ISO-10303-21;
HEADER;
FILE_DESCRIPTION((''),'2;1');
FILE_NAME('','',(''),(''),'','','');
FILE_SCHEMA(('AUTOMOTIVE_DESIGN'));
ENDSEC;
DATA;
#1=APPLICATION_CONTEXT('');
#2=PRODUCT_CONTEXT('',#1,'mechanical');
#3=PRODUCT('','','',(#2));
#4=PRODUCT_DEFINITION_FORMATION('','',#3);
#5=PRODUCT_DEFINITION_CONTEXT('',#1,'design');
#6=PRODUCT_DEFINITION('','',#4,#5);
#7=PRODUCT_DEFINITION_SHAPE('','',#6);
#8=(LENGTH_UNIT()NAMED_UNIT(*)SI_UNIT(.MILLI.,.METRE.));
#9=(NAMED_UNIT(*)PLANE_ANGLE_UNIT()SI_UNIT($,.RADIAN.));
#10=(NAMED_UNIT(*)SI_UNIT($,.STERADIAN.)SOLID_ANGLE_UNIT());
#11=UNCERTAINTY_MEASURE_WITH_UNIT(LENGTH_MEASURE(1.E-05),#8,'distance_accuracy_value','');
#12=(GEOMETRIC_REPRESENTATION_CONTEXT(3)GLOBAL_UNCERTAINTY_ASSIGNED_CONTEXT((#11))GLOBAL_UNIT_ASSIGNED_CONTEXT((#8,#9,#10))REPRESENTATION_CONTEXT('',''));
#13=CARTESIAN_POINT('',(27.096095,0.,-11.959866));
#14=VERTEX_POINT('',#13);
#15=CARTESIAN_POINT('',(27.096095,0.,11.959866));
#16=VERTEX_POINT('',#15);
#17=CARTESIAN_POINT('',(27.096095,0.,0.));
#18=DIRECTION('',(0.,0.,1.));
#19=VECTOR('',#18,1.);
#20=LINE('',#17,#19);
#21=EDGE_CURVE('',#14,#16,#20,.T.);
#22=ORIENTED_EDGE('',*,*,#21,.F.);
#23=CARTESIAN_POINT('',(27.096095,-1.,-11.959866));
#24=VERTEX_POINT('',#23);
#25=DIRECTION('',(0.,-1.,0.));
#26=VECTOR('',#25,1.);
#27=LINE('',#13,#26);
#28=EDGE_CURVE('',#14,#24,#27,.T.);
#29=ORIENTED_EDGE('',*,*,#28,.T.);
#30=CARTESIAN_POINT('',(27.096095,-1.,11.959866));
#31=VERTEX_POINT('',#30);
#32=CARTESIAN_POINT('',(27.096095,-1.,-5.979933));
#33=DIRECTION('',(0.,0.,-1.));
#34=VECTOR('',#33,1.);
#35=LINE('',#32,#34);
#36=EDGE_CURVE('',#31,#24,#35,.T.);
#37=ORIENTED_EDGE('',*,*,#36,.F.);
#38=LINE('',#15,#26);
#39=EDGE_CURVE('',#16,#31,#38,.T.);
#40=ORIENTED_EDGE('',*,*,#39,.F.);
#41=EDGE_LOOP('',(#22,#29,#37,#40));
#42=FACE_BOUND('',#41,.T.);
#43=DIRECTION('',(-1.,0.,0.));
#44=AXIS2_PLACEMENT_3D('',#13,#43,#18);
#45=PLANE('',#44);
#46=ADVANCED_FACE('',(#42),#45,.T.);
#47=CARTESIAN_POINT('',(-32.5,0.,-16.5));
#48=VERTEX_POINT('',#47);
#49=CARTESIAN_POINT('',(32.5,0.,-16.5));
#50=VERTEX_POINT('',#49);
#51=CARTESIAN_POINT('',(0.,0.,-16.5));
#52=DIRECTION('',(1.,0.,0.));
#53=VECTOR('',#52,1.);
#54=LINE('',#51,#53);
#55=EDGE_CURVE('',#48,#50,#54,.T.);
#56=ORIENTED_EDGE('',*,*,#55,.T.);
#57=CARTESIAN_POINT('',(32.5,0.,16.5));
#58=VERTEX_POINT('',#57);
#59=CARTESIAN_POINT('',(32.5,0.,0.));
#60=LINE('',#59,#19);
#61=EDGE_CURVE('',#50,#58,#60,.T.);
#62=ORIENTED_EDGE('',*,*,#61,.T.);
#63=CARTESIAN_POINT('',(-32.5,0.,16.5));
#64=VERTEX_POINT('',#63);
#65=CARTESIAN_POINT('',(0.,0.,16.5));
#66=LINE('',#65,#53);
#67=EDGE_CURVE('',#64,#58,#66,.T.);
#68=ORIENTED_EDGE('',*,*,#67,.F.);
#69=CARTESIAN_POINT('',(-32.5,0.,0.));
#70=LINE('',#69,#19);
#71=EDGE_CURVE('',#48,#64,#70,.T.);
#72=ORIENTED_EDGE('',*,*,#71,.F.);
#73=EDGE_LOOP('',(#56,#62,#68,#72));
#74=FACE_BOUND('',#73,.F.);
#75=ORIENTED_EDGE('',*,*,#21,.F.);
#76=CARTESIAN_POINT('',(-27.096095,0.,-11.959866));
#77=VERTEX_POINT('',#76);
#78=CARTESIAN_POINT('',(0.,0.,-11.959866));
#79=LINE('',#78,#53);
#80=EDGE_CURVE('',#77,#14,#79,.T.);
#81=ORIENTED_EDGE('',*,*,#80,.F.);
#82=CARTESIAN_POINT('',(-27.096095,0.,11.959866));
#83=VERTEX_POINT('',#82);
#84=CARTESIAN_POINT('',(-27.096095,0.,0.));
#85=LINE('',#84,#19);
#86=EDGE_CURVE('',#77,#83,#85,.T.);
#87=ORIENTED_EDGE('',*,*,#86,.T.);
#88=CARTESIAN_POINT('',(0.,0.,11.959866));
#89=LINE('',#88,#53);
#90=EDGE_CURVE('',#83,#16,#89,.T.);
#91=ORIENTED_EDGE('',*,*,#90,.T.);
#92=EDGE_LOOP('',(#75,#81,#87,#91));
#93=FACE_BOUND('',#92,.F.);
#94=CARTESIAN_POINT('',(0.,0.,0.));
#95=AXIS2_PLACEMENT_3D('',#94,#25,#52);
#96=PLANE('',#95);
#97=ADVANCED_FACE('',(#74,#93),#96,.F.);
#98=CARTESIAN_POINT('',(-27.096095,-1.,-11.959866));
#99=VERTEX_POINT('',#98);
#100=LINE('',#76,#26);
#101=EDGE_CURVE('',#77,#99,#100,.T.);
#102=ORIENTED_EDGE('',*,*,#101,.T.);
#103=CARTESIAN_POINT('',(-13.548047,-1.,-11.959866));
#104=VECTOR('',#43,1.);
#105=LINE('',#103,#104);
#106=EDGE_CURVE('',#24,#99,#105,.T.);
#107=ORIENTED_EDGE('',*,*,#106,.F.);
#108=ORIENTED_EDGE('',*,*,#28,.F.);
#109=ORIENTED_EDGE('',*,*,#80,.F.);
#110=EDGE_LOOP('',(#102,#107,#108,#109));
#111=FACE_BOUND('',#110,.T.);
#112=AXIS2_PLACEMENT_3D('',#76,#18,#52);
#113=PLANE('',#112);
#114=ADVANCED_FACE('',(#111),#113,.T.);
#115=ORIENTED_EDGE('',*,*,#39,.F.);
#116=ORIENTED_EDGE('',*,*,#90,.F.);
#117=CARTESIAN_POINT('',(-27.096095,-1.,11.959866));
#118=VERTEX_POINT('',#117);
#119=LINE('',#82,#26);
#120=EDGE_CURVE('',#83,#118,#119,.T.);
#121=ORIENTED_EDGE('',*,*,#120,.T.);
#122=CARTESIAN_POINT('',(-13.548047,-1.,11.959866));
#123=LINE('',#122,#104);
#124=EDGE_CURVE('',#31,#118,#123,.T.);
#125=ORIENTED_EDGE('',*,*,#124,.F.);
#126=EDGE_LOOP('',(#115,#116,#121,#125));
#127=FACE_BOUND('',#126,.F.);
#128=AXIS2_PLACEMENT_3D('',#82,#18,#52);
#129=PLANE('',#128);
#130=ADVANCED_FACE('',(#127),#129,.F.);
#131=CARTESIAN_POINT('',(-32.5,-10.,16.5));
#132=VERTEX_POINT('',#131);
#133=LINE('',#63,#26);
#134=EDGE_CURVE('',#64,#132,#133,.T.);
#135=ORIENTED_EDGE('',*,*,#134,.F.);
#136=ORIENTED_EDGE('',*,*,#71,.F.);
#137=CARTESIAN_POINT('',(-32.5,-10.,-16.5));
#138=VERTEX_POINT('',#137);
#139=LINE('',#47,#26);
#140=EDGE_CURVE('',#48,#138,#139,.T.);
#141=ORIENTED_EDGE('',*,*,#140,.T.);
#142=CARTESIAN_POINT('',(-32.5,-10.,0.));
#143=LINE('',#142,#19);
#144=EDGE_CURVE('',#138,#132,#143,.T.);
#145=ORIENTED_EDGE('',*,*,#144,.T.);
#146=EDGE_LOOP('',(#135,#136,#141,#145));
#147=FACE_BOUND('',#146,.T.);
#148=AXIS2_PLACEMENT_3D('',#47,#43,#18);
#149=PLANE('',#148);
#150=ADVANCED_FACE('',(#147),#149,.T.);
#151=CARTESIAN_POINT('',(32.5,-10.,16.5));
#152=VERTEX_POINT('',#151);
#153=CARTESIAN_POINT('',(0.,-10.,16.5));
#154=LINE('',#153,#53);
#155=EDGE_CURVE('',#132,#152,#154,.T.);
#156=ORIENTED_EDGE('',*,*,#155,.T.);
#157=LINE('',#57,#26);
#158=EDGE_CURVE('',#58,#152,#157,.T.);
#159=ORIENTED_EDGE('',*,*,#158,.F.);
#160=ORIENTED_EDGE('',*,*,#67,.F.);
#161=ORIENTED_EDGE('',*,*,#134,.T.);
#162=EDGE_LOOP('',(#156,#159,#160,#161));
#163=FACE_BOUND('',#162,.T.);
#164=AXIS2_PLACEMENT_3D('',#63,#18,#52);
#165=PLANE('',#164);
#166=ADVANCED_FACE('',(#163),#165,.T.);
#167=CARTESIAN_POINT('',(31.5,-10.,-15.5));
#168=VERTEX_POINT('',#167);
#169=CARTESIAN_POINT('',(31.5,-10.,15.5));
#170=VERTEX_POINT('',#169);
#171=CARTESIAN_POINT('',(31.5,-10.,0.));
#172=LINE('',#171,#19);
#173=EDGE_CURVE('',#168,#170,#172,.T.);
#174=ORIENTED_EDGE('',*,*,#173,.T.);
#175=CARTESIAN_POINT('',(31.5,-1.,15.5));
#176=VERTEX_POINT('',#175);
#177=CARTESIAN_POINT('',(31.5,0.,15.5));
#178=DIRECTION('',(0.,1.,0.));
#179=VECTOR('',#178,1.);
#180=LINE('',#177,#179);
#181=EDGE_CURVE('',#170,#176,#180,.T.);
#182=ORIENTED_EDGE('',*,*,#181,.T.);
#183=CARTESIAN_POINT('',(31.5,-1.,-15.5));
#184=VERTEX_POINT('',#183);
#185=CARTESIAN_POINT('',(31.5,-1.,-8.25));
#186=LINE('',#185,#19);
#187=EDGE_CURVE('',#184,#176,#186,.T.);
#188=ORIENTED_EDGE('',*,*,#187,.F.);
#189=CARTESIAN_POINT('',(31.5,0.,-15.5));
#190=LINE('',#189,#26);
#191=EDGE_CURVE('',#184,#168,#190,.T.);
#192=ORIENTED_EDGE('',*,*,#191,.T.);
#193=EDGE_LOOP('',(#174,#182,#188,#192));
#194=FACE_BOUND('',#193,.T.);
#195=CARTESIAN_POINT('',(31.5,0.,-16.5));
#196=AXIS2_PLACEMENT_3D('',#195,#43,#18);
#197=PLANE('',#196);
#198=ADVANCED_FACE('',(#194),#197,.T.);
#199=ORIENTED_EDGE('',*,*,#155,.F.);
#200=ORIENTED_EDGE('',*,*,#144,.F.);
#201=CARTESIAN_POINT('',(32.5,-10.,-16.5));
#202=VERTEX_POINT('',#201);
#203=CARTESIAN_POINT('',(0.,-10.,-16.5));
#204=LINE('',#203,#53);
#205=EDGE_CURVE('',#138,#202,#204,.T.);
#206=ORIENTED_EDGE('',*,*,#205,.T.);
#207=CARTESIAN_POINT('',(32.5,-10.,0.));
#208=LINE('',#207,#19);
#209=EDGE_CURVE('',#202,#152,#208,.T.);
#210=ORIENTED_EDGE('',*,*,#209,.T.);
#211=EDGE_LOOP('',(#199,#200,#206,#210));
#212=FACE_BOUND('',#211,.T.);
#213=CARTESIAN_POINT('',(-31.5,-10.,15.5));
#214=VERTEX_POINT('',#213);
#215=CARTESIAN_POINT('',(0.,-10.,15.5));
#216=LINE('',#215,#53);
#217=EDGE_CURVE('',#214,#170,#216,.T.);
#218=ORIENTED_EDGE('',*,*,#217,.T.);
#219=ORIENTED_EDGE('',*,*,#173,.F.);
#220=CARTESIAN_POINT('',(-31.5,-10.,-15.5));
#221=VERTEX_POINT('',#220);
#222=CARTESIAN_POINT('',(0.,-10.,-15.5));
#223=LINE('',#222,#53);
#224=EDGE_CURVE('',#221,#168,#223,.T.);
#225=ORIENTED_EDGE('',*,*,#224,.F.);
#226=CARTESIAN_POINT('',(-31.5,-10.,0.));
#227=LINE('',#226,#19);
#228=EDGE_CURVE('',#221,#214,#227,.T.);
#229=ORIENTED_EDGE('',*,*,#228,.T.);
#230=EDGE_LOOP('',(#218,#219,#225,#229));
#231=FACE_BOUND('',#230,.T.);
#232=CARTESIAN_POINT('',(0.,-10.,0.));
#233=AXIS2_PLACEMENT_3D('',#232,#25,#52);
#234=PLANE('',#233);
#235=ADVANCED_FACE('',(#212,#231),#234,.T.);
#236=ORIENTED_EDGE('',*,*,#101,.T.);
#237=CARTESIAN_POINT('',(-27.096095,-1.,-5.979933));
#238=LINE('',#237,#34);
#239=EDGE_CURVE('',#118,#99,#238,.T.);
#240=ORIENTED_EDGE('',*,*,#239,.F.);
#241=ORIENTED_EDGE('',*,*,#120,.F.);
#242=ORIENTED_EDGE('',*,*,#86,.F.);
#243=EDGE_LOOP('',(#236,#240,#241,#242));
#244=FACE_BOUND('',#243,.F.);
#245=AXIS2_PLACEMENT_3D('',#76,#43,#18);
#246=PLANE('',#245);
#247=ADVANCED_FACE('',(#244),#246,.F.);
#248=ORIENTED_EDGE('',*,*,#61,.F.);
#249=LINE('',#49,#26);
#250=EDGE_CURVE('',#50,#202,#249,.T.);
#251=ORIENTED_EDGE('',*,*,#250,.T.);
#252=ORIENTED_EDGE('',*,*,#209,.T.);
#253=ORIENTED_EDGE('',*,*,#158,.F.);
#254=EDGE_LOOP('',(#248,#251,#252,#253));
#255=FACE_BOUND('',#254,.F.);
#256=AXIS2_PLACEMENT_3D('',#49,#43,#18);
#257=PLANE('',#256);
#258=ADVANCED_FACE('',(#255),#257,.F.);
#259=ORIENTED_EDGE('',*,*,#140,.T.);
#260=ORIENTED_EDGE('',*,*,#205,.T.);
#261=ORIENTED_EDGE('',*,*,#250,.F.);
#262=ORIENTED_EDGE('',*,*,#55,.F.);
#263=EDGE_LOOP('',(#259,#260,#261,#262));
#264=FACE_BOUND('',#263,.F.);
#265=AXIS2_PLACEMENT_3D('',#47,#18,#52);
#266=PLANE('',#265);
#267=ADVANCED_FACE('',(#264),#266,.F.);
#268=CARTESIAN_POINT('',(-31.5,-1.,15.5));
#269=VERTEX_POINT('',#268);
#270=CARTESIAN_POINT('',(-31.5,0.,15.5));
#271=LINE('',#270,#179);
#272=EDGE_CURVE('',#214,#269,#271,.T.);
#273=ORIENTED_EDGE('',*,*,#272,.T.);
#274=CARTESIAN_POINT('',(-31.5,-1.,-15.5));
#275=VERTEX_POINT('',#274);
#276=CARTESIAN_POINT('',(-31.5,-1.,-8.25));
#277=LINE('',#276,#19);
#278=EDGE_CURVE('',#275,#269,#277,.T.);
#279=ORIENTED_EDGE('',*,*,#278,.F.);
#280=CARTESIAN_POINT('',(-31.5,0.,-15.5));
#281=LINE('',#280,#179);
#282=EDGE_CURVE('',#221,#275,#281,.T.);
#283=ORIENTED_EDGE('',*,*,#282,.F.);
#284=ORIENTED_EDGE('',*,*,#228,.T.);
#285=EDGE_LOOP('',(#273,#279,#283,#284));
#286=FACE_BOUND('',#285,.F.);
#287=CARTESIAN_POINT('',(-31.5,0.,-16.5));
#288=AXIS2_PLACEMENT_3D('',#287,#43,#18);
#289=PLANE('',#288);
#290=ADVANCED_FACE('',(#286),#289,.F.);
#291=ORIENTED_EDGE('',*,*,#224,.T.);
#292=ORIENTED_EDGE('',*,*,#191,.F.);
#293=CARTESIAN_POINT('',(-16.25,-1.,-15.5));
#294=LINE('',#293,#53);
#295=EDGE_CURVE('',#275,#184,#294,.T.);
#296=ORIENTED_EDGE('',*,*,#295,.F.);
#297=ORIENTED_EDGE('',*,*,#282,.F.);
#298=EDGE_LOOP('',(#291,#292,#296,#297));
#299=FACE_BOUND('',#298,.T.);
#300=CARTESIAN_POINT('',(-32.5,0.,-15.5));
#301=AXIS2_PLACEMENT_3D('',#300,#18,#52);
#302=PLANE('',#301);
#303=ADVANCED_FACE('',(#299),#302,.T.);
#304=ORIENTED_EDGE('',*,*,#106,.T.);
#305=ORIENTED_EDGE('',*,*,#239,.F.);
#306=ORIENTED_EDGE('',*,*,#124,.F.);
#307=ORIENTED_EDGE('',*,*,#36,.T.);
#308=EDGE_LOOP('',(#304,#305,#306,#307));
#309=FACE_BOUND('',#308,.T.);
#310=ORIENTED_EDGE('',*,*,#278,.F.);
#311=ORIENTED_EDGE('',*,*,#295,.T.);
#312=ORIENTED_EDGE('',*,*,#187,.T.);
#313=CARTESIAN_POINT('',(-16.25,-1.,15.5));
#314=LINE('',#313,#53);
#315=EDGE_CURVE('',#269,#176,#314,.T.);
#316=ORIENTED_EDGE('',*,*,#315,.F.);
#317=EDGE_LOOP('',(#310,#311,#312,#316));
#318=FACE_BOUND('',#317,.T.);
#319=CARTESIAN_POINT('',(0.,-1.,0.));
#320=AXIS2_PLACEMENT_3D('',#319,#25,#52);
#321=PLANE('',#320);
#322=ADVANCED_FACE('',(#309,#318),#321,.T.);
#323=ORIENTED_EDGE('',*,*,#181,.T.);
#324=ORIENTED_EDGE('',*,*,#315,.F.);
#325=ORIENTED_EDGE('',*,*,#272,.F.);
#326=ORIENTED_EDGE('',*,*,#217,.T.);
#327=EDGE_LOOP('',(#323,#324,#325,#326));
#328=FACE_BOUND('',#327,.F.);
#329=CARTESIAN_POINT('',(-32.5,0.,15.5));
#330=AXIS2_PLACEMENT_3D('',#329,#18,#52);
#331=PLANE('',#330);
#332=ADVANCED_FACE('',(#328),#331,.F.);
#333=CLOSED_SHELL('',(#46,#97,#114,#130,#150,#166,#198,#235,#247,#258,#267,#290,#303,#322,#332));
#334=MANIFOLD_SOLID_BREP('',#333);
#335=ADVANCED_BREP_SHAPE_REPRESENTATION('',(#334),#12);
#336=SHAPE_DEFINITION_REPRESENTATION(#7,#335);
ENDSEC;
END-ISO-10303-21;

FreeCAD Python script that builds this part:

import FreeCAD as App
import Part
import Sketcher
from FreeCAD import Vector
Q = App.Units.Quantity


def faces_at(feature, points):
    """Names of the faces that lie closest to the given points."""
    faces = feature.Shape.Faces
    near = lambda p: min(range(len(faces)), key=lambda i: faces[i].distToShape(Part.Vertex(*p))[0])
    return sorted({f"Face{near(p) + 1}" for p in points})


def add_polygon(sketch, points):
    """Adds a closed chain of lines whose ends are joined by coincident constraints."""
    first, n = sketch.GeometryCount, len(points)
    for a, b in zip(points, points[1:] + points[:1]):
        sketch.addGeometry(Part.LineSegment(App.Vector(*a, 0), App.Vector(*b, 0)), False)
    for i in range(n):
        sketch.addConstraint(Sketcher.Constraint("Coincident", first + i, 2, first + (i + 1) % n, 1))

doc = App.newDocument("Part")
body = doc.addObject("PartDesign::Body", "Body")

sketch1 = body.newObject("Sketcher::SketchObject", "Sketch")
sketch1.AttachmentSupport = (doc.getObject("XZ_Plane"), [""])
sketch1.MapMode = "FlatFace"
add_polygon(sketch1, [(-32, 16), (-32, -16), (32, -16), (32, 16)])
sketch1.addConstraint([
    Sketcher.Constraint("Vertical", 0),
    Sketcher.Constraint("Horizontal", 1),
    Sketcher.Constraint("Vertical", 2),
    Sketcher.Constraint("Horizontal", 3),
    Sketcher.Constraint("Symmetric", 0, 2, 2, 2, -1, 1),
    Sketcher.Constraint("DistanceX", 1, 1, 1, 2, Q("65 mm")),
    Sketcher.Constraint("DistanceY", 0, 2, 0, 1, Q("33 mm")),
])
pad1 = body.newObject("PartDesign::Pad", "Pad")
pad1.Profile = sketch1
pad1.Length = 10
doc.recompute()

thickness = body.newObject("PartDesign::Thickness", "Thickness")
thickness.Base = (pad1, faces_at(pad1, [(0, -10, 0)]))
thickness.Value = 1
thickness.Reversed = True
thickness.Join = "Arc"

sketch2 = body.newObject("Sketcher::SketchObject", "Sketch001")
sketch2.AttachmentSupport = (doc.getObject("XZ_Plane"), [""])
sketch2.MapMode = "FlatFace"
add_polygon(sketch2, [(-27, 12), (-27, -12), (27, -12), (27, 12)])
sketch2.addConstraint([
    Sketcher.Constraint("Vertical", 0),
    Sketcher.Constraint("Horizontal", 1),
    Sketcher.Constraint("Vertical", 2),
    Sketcher.Constraint("Horizontal", 3),
    Sketcher.Constraint("Symmetric", 0, 2, 2, 2, -1, 1),
    Sketcher.Constraint("DistanceX", 1, 1, 1, 2, Q("54.192189 mm")),
    Sketcher.Constraint("DistanceY", 0, 2, 0, 1, Q("23.919731 mm")),
])
pocket1 = body.newObject("PartDesign::Pocket", "Pocket")
pocket1.Profile = sketch2
pocket1.Length = 73.80026
pocket1.Reversed = True

doc.recompute()
